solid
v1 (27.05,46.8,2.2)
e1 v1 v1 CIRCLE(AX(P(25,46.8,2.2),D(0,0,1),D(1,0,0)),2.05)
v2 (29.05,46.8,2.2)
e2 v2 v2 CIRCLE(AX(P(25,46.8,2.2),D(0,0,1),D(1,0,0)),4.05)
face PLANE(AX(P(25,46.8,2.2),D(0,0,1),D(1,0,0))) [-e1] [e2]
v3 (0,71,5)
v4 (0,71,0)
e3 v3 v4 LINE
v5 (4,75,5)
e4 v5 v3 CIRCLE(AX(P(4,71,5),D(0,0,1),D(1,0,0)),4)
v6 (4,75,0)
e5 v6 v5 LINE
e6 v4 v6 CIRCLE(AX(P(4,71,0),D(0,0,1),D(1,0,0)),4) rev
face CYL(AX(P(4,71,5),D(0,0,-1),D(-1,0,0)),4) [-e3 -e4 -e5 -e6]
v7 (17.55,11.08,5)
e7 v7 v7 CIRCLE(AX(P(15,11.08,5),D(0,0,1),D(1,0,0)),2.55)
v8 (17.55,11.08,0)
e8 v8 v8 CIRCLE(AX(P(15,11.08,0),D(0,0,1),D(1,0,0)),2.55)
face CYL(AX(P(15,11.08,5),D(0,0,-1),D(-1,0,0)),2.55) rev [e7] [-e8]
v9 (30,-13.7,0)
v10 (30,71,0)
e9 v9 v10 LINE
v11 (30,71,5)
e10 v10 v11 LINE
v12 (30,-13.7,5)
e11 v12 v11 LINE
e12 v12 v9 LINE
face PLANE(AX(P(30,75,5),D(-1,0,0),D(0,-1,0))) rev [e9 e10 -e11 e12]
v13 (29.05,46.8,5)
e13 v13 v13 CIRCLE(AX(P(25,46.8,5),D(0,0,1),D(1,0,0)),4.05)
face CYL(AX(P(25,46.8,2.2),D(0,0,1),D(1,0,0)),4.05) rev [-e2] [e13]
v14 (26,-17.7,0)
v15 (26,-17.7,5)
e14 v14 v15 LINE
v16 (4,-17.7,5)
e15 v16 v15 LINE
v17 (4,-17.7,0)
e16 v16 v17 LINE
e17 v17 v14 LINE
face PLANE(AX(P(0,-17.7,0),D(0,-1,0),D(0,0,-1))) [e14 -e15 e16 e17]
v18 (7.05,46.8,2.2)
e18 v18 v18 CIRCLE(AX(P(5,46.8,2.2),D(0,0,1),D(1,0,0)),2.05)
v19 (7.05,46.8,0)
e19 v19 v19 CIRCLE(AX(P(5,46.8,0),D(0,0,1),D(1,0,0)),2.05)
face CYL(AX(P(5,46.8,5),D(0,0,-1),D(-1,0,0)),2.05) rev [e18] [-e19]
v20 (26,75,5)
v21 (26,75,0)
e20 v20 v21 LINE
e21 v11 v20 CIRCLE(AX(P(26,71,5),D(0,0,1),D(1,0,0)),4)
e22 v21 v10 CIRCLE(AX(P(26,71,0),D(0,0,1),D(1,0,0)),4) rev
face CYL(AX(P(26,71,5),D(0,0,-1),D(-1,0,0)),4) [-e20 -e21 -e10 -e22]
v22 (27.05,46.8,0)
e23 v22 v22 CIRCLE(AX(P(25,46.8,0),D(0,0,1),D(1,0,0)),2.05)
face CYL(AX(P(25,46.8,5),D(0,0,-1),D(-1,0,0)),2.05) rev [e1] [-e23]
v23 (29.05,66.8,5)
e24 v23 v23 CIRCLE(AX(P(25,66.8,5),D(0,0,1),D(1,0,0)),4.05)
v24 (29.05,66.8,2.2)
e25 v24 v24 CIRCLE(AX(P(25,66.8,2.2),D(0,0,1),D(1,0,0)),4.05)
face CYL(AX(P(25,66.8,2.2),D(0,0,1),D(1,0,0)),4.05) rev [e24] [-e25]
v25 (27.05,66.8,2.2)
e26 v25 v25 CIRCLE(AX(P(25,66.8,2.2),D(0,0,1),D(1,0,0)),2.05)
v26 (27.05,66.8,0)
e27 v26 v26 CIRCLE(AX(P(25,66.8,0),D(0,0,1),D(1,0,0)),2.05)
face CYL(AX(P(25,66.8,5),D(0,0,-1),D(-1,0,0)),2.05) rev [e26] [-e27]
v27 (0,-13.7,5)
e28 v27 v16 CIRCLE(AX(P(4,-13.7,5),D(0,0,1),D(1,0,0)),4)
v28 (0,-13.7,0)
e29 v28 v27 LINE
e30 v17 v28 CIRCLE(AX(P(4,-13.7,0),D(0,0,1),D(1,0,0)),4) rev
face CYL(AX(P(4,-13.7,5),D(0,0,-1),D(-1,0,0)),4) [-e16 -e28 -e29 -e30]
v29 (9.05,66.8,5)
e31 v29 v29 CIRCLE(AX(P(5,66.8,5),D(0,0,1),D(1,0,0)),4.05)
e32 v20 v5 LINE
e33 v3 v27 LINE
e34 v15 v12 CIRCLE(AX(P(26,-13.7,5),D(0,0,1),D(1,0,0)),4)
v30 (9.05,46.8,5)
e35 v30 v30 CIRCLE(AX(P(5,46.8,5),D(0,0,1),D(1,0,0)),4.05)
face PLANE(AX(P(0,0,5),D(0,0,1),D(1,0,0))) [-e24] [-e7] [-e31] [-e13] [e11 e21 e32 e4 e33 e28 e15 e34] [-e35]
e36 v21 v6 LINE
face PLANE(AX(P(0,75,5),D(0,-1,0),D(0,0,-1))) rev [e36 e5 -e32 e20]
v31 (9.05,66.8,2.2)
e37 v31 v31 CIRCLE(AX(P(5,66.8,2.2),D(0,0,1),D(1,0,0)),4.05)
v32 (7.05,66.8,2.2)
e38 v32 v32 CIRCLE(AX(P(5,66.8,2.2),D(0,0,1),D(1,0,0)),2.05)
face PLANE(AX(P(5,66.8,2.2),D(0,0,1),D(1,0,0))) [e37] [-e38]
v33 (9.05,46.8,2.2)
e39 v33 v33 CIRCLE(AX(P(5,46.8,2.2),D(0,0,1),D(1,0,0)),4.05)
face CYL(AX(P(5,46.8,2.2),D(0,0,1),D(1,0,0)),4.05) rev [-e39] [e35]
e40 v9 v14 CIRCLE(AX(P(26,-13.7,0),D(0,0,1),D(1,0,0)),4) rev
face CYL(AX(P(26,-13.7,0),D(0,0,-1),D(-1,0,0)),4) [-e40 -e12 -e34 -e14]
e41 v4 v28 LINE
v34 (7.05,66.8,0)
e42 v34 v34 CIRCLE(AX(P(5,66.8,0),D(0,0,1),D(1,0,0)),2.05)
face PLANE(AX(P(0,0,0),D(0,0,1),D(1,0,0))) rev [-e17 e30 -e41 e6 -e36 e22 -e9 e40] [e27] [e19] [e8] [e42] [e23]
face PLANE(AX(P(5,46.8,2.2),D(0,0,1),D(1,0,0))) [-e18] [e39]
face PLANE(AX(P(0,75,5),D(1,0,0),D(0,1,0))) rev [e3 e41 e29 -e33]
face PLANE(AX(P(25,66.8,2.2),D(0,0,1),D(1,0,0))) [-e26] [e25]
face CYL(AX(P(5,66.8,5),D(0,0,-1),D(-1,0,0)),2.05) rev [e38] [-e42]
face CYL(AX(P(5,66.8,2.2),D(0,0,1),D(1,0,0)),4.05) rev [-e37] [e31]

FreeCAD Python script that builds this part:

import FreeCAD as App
import Part
import Sketcher

V = App.Vector


def edges_at(feature, points):
    """Names of the edges that pass closest to the given points."""
    edges = feature.Shape.Edges
    near = lambda p: min(range(len(edges)), key=lambda i: edges[i].distToShape(Part.Vertex(*p))[0])
    return sorted({f"Edge{near(p) + 1}" for p in points})


def add_polygon(sketch, points):
    """Adds a closed chain of lines whose ends are joined by coincident constraints."""
    first, n = sketch.GeometryCount, len(points)
    for a, b in zip(points, points[1:] + points[:1]):
        sketch.addGeometry(Part.LineSegment(App.Vector(*a, 0), App.Vector(*b, 0)), False)
    for i in range(n):
        sketch.addConstraint(Sketcher.Constraint("Coincident", first + i, 2, first + (i + 1) % n, 1))

doc = App.newDocument("Part")
params = doc.addObject("Spreadsheet::Sheet", "Params")
for row, (alias, value) in enumerate([
    ("sketch1_diameter", "5.1 mm"),
    ("sketch1_diameter2", "4.1 mm"),
    ("sketch1_width", "30 mm"),
    ("sketch1_height", "75 mm"),
    ("pad1_length", "5 mm"),
    ("sketch2_diameter", "8.1 mm"),
    ("pocket1_length", "2.8 mm"),
    ("sketch3_width", "30 mm"),
    ("sketch3_height", "17.7 mm"),
    ("pad2_length", "5 mm"),
    ("fillet_radius", "4 mm"),
], start=1):
    params.set(f"A{row}", alias)
    params.set(f"B{row}", "=" + value)
    params.setAlias(f"B{row}", alias)

body = doc.addObject("PartDesign::Body", "Body")

sketch1 = body.newObject("Sketcher::SketchObject", "Sketch")
sketch1.AttachmentSupport = (doc.getObject("XY_Plane"), [""])
sketch1.MapMode = "FlatFace"
add_polygon(sketch1, [(0, 75), (0, 0), (30, 0), (30, 75)])
sketch1.addGeometry(Part.Circle(V(15, 11.1, 0), V(0, 0, 1), 2.5), False)
sketch1.addGeometry(Part.Circle(V(5, 46.8, 0), V(0, 0, 1), 2), False)
sketch1.addGeometry(Part.Circle(V(5, 66.8, 0), V(0, 0, 1), 2), False)
sketch1.addGeometry(Part.Circle(V(25, 46.8, 0), V(0, 0, 1), 2), False)
sketch1.addGeometry(Part.Circle(V(25, 66.8, 0), V(0, 0, 1), 2), False)
sketch1.addConstraint([
    Sketcher.Constraint("Vertical", 0),
    Sketcher.Constraint("Horizontal", 1),
    Sketcher.Constraint("Vertical", 2),
    Sketcher.Constraint("Horizontal", 3),
    Sketcher.Constraint("Coincident", 0, 2, -1, 1),
    Sketcher.Constraint("Equal", 5, 6),
    Sketcher.Constraint("Equal", 6, 7),
    Sketcher.Constraint("Equal", 7, 8),
    Sketcher.Constraint("Horizontal", 5, 3, 7, 3),
    Sketcher.Constraint("Horizontal", 6, 3, 8, 3),
    Sketcher.Constraint("Vertical", 5, 3, 6, 3),
    Sketcher.Constraint("Vertical", 7, 3, 8, 3),
    Sketcher.Constraint("Diameter", 4, 5.1),
    Sketcher.Constraint("Diameter", 5, 4.1),
    Sketcher.Constraint("DistanceX", 1, 1, 1, 2, 30.0),
    Sketcher.Constraint("DistanceY", 0, 2, 0, 1, 75.0),
    Sketcher.Constraint("DistanceX", -1, 1, 4, 3, 15.0),
    Sketcher.Constraint("DistanceX", -1, 1, 5, 3, 5.0),
    Sketcher.Constraint("DistanceX", -1, 1, 7, 3, 25.0),
    Sketcher.Constraint("DistanceY", 5, 3, 6, 3, 20.0),
    Sketcher.Constraint("DistanceY", -1, 1, 5, 3, 46.8),
    Sketcher.Constraint("DistanceY", -1, 1, 4, 3, 11.08),
])
sketch1.setExpression("Constraints[16]", "Params.sketch1_diameter")
sketch1.setExpression("Constraints[17]", "Params.sketch1_diameter2")
sketch1.setExpression("Constraints[18]", "Params.sketch1_width")
sketch1.setExpression("Constraints[19]", "Params.sketch1_height")
pad1 = body.newObject("PartDesign::Pad", "Pad")
pad1.Profile = sketch1
pad1.setExpression("Length", "Params.pad1_length")

sketch2 = body.newObject("Sketcher::SketchObject", "Sketch001")
sketch2.AttachmentSupport = (doc.getObject("XY_Plane"), [""])
sketch2.MapMode = "FlatFace"
sketch2.AttachmentOffset = App.Placement(V(0, 0, 5), App.Rotation())
sketch2.addGeometry([
    Part.Circle(V(5, 66.8, 0), V(0, 0, 1), 4),
    Part.Circle(V(5, 46.8, 0), V(0, 0, 1), 4),
    Part.Circle(V(25, 46.8, 0), V(0, 0, 1), 4),
    Part.Circle(V(25, 66.8, 0), V(0, 0, 1), 4),
], False)
sketch2.addConstraint([
    Sketcher.Constraint("Equal", 0, 1),
    Sketcher.Constraint("Equal", 1, 2),
    Sketcher.Constraint("Equal", 2, 3),
    Sketcher.Constraint("Horizontal", 1, 3, 2, 3),
    Sketcher.Constraint("Horizontal", 0, 3, 3, 3),
    Sketcher.Constraint("Vertical", 0, 3, 1, 3),
    Sketcher.Constraint("Vertical", 2, 3, 3, 3),
    Sketcher.Constraint("Diameter", 0, 8.1),
    Sketcher.Constraint("DistanceX", -1, 1, 0, 3, 5.0),
    Sketcher.Constraint("DistanceX", -1, 1, 2, 3, 25.0),
    Sketcher.Constraint("DistanceY", 1, 3, 0, 3, 20.0),
    Sketcher.Constraint("DistanceY", -1, 1, 0, 3, 66.8),
])
sketch2.setExpression("Constraints[7]", "Params.sketch2_diameter")
pocket1 = body.newObject("PartDesign::Pocket", "Pocket")
pocket1.Profile = sketch2
pocket1.setExpression("Length", "Params.pocket1_length")

sketch3 = body.newObject("Sketcher::SketchObject", "Sketch002")
sketch3.AttachmentSupport = (doc.getObject("XY_Plane"), [""])
sketch3.MapMode = "FlatFace"
sketch3.AttachmentOffset = App.Placement(V(0, 0, 5), App.Rotation())
add_polygon(sketch3, [(0, 0), (0, -18), (30, -18), (30, 0)])
sketch3.addConstraint([
    Sketcher.Constraint("Vertical", 0),
    Sketcher.Constraint("Horizontal", 1),
    Sketcher.Constraint("Vertical", 2),
    Sketcher.Constraint("Horizontal", 3),
    Sketcher.Constraint("Coincident", 3, 2, -1, 1),
    Sketcher.Constraint("DistanceX", 1, 1, 1, 2, 30.0),
    Sketcher.Constraint("DistanceY", 0, 2, 0, 1, 17.7),
])
sketch3.setExpression("Constraints[9]", "Params.sketch3_width")
sketch3.setExpression("Constraints[10]", "Params.sketch3_height")
pad2 = body.newObject("PartDesign::Pad", "Pad001")
pad2.Profile = sketch3
pad2.setExpression("Length", "Params.pad2_length")
pad2.Reversed = True
doc.recompute()

fillet = body.newObject("PartDesign::Fillet", "Fillet")
fillet.Base = (pad2, edges_at(pad2, [
    (0, -17.7, 2.5),
    (30, -17.7, 2.5),
    (0, 75, 2.5),
    (30, 75, 2.5),
]))
fillet.setExpression("Radius", "Params.fillet_radius")

doc.recompute()
